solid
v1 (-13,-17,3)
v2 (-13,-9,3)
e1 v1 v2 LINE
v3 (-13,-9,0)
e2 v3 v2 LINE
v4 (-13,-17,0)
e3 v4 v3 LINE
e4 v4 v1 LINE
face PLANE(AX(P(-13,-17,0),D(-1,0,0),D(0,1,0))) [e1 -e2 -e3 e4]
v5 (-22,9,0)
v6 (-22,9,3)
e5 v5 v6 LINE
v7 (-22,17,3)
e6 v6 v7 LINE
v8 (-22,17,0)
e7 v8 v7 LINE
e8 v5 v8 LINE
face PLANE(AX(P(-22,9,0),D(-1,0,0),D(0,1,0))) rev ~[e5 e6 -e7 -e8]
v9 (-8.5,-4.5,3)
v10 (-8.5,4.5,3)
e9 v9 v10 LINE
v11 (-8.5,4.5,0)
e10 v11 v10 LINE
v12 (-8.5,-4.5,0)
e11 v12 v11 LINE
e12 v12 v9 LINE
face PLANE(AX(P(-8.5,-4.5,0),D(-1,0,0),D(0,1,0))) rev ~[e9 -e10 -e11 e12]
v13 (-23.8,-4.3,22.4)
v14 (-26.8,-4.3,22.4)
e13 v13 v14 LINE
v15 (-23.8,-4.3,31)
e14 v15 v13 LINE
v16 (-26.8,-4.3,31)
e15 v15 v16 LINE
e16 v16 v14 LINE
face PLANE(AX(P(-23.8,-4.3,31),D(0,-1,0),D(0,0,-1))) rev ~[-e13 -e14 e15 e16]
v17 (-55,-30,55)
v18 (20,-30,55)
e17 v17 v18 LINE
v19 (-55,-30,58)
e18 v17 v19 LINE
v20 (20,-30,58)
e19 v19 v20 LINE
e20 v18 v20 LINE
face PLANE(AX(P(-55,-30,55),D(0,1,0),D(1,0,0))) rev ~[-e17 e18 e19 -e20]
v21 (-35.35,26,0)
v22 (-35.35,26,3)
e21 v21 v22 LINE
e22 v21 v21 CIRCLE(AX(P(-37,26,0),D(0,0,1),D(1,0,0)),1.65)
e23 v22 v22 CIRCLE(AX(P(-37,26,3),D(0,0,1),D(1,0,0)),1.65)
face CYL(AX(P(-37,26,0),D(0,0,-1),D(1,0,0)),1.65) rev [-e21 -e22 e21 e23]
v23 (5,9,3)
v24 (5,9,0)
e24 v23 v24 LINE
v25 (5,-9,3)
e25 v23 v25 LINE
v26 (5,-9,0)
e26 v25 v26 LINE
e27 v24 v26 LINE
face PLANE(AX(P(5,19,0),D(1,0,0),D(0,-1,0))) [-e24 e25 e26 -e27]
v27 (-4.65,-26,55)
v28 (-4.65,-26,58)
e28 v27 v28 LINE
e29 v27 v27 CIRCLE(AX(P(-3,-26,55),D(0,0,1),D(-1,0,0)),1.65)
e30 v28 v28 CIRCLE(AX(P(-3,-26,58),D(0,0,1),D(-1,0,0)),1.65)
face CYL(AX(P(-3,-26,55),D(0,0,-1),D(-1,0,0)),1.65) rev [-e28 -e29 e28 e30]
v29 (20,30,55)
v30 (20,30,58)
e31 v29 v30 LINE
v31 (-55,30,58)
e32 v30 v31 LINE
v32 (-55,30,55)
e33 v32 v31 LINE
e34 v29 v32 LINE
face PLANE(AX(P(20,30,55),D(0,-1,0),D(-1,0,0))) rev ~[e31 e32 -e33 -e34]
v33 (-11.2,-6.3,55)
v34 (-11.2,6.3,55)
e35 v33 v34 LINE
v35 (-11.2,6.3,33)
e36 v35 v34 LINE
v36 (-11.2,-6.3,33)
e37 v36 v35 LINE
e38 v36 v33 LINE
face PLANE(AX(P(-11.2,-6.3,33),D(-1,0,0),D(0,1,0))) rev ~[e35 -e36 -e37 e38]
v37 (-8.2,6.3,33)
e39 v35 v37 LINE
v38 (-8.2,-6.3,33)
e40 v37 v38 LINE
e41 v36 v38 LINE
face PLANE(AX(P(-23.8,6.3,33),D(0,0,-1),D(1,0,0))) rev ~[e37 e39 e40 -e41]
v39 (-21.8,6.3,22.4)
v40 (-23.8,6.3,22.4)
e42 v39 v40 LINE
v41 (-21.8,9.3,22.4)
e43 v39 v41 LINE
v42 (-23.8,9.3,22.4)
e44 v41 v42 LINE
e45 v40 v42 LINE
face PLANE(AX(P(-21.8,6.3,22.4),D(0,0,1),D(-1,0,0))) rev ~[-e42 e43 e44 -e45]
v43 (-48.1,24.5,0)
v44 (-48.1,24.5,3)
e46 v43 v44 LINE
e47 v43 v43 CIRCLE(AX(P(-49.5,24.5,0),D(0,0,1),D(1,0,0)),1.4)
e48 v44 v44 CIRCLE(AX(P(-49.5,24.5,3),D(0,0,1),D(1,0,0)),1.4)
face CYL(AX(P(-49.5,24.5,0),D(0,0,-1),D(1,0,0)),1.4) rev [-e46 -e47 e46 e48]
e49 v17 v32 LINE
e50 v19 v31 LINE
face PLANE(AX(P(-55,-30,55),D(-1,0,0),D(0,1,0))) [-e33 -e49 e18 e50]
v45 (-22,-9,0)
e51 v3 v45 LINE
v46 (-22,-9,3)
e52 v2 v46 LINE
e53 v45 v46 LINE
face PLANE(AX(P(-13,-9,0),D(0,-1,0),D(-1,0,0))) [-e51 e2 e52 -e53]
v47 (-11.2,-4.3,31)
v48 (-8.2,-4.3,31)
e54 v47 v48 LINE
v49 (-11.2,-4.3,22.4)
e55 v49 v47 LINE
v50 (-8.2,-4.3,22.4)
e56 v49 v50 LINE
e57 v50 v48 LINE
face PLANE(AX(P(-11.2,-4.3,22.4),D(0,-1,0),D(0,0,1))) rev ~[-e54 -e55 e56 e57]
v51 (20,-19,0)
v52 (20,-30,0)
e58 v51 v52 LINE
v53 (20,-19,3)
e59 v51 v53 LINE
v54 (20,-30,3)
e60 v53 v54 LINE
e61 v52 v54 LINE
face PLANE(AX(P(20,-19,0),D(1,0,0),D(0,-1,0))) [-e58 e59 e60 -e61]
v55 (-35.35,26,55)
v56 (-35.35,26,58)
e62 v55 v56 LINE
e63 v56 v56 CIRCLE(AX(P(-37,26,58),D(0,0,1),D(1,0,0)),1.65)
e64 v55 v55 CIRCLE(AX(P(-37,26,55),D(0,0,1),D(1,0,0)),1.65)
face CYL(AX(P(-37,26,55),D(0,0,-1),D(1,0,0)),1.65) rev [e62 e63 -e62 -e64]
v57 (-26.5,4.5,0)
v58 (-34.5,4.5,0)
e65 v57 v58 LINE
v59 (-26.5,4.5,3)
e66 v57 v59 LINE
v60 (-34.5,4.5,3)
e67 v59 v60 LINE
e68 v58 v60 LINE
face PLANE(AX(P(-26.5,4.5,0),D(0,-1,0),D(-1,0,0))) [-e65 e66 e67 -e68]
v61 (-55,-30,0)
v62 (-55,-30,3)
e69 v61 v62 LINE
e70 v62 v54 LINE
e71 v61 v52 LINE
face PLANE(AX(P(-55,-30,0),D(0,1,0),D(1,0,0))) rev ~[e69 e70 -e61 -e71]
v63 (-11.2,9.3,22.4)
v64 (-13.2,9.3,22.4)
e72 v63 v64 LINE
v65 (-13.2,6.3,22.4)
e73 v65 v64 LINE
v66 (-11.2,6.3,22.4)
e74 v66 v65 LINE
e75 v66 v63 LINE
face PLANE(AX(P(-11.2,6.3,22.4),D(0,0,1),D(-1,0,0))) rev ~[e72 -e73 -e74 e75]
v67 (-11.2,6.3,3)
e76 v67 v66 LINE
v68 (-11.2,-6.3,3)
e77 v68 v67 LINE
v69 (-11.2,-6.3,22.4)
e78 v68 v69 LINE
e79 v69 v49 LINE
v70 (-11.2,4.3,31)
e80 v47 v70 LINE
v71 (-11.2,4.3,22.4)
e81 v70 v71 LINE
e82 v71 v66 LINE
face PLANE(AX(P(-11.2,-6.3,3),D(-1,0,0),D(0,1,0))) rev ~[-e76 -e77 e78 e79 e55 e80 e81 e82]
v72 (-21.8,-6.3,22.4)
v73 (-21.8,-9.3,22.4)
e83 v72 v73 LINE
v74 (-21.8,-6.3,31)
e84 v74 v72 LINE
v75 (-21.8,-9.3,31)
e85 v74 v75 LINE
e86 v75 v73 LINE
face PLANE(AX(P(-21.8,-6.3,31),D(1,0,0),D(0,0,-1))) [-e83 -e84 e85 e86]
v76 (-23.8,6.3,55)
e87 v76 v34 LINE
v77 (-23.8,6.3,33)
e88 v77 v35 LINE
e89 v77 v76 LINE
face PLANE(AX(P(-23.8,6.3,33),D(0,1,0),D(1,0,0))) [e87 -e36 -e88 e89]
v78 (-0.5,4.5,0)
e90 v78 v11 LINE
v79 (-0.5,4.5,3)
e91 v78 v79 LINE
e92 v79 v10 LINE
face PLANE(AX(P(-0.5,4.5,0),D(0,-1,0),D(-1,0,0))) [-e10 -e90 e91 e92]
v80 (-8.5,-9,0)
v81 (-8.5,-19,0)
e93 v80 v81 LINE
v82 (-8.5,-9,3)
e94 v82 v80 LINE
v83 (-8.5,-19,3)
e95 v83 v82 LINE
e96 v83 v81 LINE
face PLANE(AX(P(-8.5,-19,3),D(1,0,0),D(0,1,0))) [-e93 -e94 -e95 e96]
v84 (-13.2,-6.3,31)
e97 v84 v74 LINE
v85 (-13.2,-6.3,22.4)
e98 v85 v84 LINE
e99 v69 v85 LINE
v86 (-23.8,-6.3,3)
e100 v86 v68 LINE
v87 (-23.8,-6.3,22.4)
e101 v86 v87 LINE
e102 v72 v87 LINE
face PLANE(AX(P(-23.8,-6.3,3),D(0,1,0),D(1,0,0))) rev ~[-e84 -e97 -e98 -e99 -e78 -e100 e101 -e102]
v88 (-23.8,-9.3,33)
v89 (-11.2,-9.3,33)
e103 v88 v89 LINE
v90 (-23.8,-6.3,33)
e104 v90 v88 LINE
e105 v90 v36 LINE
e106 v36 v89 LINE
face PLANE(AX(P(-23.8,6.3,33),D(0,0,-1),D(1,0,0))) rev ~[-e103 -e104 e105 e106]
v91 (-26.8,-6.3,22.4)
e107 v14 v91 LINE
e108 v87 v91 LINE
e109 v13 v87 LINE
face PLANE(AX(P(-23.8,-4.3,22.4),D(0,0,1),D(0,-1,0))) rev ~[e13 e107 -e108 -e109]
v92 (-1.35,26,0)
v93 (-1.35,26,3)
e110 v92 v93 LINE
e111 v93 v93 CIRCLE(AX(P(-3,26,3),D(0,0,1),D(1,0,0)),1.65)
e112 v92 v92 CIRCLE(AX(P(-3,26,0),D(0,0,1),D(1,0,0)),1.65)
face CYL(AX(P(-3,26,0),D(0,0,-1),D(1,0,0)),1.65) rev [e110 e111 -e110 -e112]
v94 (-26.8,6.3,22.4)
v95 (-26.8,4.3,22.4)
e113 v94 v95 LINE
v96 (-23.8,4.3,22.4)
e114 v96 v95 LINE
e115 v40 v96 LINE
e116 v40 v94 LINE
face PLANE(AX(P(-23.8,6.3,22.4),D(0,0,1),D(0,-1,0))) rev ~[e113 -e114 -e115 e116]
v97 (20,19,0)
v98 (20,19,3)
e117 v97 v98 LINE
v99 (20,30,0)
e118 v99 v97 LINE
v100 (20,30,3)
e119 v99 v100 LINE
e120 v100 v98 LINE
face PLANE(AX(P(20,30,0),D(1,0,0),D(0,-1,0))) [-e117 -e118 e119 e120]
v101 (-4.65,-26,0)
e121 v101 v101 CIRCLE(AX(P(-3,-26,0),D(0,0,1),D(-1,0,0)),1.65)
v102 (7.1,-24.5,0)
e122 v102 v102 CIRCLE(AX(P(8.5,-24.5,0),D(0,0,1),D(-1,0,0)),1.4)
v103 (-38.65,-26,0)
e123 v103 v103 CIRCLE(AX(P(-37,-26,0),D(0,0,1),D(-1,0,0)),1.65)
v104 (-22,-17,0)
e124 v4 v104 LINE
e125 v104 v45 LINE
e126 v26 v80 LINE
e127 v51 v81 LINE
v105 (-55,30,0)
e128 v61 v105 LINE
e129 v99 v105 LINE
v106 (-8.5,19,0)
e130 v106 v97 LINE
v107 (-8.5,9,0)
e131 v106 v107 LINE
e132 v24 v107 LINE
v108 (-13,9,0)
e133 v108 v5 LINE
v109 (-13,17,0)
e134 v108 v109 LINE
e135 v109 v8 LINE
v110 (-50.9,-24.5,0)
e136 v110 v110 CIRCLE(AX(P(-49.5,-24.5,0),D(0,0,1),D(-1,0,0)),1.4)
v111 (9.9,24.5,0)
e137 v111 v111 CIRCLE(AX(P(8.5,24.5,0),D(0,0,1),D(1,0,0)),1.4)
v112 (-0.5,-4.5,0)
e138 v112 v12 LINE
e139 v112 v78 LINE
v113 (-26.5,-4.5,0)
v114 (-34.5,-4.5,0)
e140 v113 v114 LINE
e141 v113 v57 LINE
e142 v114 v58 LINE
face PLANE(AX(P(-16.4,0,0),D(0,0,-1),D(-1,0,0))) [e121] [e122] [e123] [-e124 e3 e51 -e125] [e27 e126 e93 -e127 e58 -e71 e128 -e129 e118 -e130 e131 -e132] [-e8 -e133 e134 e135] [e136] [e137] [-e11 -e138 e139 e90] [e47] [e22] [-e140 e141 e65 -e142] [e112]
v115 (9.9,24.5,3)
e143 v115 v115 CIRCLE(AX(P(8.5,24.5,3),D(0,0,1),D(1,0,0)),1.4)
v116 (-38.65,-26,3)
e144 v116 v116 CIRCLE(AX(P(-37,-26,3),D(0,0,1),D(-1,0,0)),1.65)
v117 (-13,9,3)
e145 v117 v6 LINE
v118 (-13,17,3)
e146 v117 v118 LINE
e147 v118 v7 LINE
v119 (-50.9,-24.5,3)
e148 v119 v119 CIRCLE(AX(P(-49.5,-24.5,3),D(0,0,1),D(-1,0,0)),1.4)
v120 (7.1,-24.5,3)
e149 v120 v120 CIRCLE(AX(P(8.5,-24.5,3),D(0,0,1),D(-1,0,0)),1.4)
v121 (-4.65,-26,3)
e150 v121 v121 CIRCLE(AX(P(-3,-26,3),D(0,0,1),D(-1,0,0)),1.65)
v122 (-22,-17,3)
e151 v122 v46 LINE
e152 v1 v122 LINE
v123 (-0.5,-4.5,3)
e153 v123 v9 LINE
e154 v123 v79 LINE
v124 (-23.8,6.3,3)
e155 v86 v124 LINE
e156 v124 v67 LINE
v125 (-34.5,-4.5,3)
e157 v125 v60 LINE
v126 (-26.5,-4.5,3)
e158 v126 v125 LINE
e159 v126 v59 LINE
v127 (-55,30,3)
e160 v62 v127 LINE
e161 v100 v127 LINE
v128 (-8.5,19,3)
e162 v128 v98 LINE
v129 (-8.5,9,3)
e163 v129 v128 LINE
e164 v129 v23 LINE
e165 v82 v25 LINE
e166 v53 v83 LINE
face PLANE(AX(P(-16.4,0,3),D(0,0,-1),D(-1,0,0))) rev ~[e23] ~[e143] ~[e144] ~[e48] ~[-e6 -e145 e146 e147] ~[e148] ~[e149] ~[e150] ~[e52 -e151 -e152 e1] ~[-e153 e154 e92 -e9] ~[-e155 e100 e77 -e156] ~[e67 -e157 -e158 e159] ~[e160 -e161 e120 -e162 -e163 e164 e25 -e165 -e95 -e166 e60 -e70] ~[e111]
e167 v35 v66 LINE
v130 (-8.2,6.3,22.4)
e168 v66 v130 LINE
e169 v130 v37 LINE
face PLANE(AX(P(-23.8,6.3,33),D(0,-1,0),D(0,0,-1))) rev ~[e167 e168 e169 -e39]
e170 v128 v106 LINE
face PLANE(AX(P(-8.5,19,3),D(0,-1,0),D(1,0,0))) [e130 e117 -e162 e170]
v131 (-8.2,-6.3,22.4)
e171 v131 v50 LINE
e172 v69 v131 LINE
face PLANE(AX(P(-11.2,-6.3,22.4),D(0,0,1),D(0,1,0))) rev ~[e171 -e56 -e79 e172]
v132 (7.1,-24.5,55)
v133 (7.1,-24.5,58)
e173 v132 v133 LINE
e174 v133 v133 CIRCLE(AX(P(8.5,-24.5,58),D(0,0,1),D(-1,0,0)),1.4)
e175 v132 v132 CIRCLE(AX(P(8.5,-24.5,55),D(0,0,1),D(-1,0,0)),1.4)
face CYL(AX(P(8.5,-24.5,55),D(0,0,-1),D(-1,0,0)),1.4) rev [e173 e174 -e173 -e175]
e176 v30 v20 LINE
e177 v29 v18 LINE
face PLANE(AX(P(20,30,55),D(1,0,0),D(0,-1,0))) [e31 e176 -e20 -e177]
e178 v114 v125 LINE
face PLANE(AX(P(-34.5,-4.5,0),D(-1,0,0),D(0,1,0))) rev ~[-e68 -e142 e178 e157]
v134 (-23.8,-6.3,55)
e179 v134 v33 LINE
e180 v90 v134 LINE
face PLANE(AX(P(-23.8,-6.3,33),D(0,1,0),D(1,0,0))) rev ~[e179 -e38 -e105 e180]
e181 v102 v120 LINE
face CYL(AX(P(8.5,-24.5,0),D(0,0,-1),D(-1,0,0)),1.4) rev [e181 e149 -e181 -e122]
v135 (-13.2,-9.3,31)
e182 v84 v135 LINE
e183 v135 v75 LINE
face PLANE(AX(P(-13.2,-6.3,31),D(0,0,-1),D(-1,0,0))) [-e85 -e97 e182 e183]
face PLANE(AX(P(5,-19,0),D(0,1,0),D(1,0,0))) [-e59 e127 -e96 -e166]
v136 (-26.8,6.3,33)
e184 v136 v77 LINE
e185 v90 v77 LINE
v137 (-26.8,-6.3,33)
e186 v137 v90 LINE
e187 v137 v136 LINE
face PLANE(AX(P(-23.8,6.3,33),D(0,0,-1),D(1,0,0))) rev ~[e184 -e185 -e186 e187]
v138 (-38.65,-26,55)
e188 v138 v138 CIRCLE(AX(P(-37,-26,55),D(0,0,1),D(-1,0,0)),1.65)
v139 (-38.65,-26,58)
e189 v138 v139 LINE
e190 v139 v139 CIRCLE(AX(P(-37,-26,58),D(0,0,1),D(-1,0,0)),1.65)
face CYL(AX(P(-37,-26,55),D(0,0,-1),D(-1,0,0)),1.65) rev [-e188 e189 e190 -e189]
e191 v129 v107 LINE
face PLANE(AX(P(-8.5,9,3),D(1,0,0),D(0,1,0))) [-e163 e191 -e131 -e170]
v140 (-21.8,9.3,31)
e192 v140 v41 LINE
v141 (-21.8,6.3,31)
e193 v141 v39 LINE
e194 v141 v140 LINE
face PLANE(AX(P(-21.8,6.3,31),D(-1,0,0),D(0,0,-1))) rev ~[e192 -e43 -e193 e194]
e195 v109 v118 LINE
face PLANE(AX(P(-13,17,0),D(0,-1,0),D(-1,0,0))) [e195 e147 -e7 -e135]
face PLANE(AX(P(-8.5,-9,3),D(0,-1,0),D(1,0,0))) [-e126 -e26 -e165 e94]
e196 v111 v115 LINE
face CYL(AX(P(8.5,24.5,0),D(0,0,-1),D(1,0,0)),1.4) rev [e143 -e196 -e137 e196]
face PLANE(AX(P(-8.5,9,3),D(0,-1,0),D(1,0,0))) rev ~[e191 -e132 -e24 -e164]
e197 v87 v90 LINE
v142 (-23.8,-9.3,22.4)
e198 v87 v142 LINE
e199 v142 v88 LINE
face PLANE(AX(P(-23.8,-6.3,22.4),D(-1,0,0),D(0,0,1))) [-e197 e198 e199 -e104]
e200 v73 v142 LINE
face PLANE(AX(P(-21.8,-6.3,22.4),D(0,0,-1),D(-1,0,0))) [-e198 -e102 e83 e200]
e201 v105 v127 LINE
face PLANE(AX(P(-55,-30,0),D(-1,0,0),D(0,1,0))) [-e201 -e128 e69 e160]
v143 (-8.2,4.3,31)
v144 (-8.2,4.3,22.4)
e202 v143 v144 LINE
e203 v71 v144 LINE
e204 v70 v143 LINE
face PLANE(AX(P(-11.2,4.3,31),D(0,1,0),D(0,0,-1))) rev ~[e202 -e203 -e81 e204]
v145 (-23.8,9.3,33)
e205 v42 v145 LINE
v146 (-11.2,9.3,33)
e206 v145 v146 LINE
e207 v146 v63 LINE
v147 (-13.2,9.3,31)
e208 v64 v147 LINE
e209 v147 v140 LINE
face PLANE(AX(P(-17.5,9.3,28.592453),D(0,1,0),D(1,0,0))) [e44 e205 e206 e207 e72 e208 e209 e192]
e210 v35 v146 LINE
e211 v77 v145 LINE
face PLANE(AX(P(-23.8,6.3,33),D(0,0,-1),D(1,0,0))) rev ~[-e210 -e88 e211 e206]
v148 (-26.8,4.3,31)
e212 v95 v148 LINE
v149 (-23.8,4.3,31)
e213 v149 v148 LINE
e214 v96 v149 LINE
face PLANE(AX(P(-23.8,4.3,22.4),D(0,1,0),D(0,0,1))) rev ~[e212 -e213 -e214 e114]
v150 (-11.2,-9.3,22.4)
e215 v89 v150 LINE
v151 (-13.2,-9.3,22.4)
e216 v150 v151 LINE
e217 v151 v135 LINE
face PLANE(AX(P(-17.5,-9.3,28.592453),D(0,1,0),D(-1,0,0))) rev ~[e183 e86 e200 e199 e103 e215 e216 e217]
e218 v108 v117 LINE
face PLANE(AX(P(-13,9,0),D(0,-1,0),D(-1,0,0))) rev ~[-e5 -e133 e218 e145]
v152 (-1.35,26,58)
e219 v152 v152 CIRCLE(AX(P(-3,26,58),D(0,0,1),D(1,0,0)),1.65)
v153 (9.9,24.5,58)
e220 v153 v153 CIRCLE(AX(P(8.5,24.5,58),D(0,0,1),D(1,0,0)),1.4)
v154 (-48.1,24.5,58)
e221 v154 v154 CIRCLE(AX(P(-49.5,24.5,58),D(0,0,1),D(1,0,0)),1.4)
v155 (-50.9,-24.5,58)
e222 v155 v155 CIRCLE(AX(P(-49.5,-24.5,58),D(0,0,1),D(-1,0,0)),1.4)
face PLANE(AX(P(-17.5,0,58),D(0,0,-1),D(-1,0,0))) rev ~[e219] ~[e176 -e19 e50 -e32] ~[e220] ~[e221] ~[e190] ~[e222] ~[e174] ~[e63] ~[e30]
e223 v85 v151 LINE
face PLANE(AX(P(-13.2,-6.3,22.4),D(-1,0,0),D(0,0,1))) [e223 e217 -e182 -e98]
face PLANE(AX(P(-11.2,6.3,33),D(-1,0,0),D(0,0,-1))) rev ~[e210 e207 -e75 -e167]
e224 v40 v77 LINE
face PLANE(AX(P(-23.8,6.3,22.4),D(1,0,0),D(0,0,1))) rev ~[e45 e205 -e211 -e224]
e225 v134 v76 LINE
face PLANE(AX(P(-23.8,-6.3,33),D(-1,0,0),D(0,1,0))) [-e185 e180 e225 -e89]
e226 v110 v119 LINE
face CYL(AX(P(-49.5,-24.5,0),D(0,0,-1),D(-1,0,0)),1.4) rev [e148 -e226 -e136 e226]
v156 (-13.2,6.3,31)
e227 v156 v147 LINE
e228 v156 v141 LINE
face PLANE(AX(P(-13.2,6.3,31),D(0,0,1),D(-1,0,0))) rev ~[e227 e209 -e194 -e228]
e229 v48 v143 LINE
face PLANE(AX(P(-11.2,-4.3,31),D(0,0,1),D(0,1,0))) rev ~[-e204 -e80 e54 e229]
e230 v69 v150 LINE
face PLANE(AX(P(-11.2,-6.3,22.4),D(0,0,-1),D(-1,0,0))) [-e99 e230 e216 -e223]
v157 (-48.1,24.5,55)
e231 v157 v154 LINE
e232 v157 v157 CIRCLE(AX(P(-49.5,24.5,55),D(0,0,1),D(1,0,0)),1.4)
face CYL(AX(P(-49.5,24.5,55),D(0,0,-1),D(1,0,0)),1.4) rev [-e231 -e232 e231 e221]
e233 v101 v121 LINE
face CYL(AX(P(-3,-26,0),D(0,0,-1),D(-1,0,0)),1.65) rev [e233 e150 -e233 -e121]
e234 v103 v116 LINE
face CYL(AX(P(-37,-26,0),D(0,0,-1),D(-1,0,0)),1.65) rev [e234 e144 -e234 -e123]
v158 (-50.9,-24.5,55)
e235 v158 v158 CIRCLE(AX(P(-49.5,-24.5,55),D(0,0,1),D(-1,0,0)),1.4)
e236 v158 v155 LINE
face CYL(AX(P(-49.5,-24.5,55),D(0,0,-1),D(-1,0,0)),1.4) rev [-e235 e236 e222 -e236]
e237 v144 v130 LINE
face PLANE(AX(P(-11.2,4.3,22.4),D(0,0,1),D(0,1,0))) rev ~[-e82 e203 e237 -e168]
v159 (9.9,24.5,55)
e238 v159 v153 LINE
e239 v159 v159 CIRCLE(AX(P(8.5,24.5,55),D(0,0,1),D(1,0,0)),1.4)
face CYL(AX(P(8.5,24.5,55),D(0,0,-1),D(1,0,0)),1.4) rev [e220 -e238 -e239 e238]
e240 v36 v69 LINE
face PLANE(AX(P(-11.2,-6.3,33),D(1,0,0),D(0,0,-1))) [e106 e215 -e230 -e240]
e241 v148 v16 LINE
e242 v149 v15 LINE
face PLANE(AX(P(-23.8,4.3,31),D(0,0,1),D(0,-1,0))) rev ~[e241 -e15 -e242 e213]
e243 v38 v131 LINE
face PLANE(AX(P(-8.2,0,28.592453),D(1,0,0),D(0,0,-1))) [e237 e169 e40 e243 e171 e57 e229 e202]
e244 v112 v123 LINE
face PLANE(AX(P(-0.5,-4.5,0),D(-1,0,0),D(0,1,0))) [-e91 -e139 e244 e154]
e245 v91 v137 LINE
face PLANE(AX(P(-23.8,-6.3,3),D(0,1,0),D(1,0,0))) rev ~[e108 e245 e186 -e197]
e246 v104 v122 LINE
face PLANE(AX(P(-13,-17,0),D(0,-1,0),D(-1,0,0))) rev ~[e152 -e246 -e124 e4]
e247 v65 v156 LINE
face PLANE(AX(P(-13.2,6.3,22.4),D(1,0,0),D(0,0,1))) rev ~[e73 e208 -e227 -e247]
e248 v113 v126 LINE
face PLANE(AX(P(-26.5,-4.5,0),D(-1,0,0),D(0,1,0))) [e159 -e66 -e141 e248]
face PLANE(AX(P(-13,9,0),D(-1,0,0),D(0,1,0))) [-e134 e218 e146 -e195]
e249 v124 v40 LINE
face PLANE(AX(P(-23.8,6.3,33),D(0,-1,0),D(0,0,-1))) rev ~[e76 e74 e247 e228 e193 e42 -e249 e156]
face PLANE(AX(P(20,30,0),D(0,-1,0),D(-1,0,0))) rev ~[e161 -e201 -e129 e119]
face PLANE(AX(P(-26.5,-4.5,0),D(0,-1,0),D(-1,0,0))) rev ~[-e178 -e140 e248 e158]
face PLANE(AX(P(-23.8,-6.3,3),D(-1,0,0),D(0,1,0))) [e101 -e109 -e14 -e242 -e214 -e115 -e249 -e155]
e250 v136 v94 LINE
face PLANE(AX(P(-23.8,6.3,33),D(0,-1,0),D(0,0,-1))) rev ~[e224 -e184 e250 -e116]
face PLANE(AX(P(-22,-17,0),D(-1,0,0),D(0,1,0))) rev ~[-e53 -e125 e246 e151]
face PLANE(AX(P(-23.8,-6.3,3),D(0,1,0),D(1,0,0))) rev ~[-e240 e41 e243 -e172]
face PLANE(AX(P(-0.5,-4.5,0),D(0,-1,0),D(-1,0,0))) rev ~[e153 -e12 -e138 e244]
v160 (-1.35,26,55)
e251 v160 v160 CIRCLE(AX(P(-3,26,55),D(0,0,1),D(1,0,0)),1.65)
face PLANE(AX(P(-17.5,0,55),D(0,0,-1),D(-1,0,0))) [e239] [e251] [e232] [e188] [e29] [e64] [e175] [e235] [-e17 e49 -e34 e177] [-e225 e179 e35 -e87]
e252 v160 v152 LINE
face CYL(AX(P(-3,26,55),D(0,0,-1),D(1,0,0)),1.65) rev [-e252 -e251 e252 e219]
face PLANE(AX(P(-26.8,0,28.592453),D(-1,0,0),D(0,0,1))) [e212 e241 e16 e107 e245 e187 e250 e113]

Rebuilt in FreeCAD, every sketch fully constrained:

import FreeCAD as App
import Part
import Sketcher

V = App.Vector

doc = App.newDocument("Part")
params = doc.addObject("Spreadsheet::Sheet", "Params")
for row, (alias, value) in enumerate([
    ("sketch1_diameter", "2.8 mm"),
    ("sketch1_diameter2", "3.3 mm"),
    ("sketch1_width", "75 mm"),
    ("sketch1_width2", "15 mm"),
    ("sketch1_height", "60 mm"),
    ("pad1_length", "3 mm"),
    ("sketch2_width", "12.6 mm"),
    ("pad2_length", "30 mm"),
    ("sketch3_width", "9 mm"),
    ("sketch3_width2", "8 mm"),
    ("sketch4_width", "2 mm"),
    ("sketch4_width2", "12.6 mm"),
    ("sketch4_height", "10.6 mm"),
    ("pad3_length", "3 mm"),
    ("sketch5_width", "2 mm"),
    ("sketch5_width2", "8.6 mm"),
    ("sketch5_height", "10.6 mm"),
    ("pad4_length", "3 mm"),
    ("sketch6_width", "2 mm"),
    ("sketch6_width2", "8.6 mm"),
    ("sketch6_height", "10.6 mm"),
    ("pad5_length", "3 mm"),
    ("sketch7_width", "2 mm"),
    ("sketch7_width2", "12.6 mm"),
    ("sketch7_height", "10.6 mm"),
    ("pad6_length", "3 mm"),
    ("sketch8_width", "12.6 mm"),
    ("pad7_length", "22 mm"),
    ("sketch9_diameter", "2.8 mm"),
    ("sketch9_diameter2", "3.3 mm"),
    ("sketch9_width", "75 mm"),
    ("sketch9_height", "60 mm"),
    ("pad8_length", "3 mm"),
    ("sketch10_height", "10 mm"),
    ("sketch10_width", "13.5 mm"),
], start=1):
    params.set(f"A{row}", alias)
    params.set(f"B{row}", "=" + value)
    params.setAlias(f"B{row}", alias)

body = doc.addObject("PartDesign::Body", "Body")

sketch1 = doc.addObject("Sketcher::SketchObject", "Sketch")
body.addObject(sketch1)
sketch1.AttachmentSupport = (doc.XY_Plane, [""])
sketch1.MapMode = "FlatFace"
sketch1.addGeometry(Part.LineSegment(V(20, 30, 0), V(-55, 30, 0)), False)
sketch1.addGeometry(Part.LineSegment(V(-55, 30, 0), V(-55, -30, 0)), False)
sketch1.addGeometry(Part.LineSegment(V(-55, -30, 0), V(20, -30, 0)), False)
sketch1.addGeometry(Part.LineSegment(V(20, -30, 0), V(20, -19, 0)), False)
sketch1.addGeometry(Part.LineSegment(V(20, -19, 0), V(5, -19, 0)), False)
sketch1.addGeometry(Part.LineSegment(V(5, -19, 0), V(5, 19, 0)), False)
sketch1.addGeometry(Part.LineSegment(V(5, 19, 0), V(20, 19, 0)), False)
sketch1.addGeometry(Part.LineSegment(V(20, 19, 0), V(20, 30, 0)), False)
sketch1.addGeometry(Part.Circle(V(8.5, -24.5, 0), V(0, 0, 1), 1.4), False)
sketch1.addGeometry(Part.Circle(V(-3, -26, 0), V(0, 0, 1), 1.65), False)
sketch1.addGeometry(Part.Circle(V(-37, -26, 0), V(0, 0, 1), 1.65), False)
sketch1.addGeometry(Part.Circle(V(-49.5, -24.5, 0), V(0, 0, 1), 1.4), False)
sketch1.addGeometry(Part.Circle(V(8.5, 24.5, 0), V(0, 0, 1), 1.4), False)
sketch1.addGeometry(Part.Circle(V(-3, 26, 0), V(0, 0, 1), 1.65), False)
sketch1.addGeometry(Part.Circle(V(-37, 26, 0), V(0, 0, 1), 1.65), False)
sketch1.addGeometry(Part.Circle(V(-49.5, 24.5, 0), V(0, 0, 1), 1.4), False)
sketch1.addConstraint(Sketcher.Constraint("Coincident", 0, 2, 1, 1))
sketch1.addConstraint(Sketcher.Constraint("Coincident", 1, 2, 2, 1))
sketch1.addConstraint(Sketcher.Constraint("Coincident", 2, 2, 3, 1))
sketch1.addConstraint(Sketcher.Constraint("Coincident", 3, 2, 4, 1))
sketch1.addConstraint(Sketcher.Constraint("Coincident", 4, 2, 5, 1))
sketch1.addConstraint(Sketcher.Constraint("Coincident", 5, 2, 6, 1))
sketch1.addConstraint(Sketcher.Constraint("Coincident", 6, 2, 7, 1))
sketch1.addConstraint(Sketcher.Constraint("Coincident", 7, 2, 0, 1))
sketch1.addConstraint(Sketcher.Constraint("Horizontal", 0))
sketch1.addConstraint(Sketcher.Constraint("Vertical", 1))
sketch1.addConstraint(Sketcher.Constraint("Horizontal", 2))
sketch1.addConstraint(Sketcher.Constraint("Vertical", 3))
sketch1.addConstraint(Sketcher.Constraint("Horizontal", 4))
sketch1.addConstraint(Sketcher.Constraint("Vertical", 5))
sketch1.addConstraint(Sketcher.Constraint("Horizontal", 6))
sketch1.addConstraint(Sketcher.Constraint("Vertical", 7))
sketch1.addConstraint(Sketcher.Constraint("Equal", 9, 10))
sketch1.addConstraint(Sketcher.Constraint("Equal", 8, 11))
sketch1.addConstraint(Sketcher.Constraint("Equal", 11, 12))
sketch1.addConstraint(Sketcher.Constraint("Equal", 10, 13))
sketch1.addConstraint(Sketcher.Constraint("Equal", 13, 14))
sketch1.addConstraint(Sketcher.Constraint("Equal", 12, 15))
sketch1.addConstraint(Sketcher.Constraint("Symmetric", 8, 3, 12, 3, -1))
sketch1.addConstraint(Sketcher.Constraint("Symmetric", 9, 3, 13, 3, -1))
sketch1.addConstraint(Sketcher.Constraint("Symmetric", 10, 3, 14, 3, -1))
sketch1.addConstraint(Sketcher.Constraint("Symmetric", 11, 3, 15, 3, -1))
sketch1.addConstraint(Sketcher.Constraint("Symmetric", 3, 2, 6, 2, -1))
sketch1.addConstraint(Sketcher.Constraint("Horizontal", 9, 3, 10, 3))
sketch1.addConstraint(Sketcher.Constraint("Horizontal", 8, 3, 11, 3))
sketch1.addConstraint(Sketcher.Constraint("Equal", 3, 7))
sketch1.addConstraint(Sketcher.Constraint("Diameter", 8, 2.8))
sketch1.addConstraint(Sketcher.Constraint("Diameter", 9, 3.3))
sketch1.addConstraint(Sketcher.Constraint("DistanceX", 0, 2, 0, 1, 75.0))
sketch1.addConstraint(Sketcher.Constraint("DistanceX", 4, 2, 4, 1, 15.0))
sketch1.addConstraint(Sketcher.Constraint("DistanceY", 1, 2, 1, 1, 60.0))
sketch1.addConstraint(Sketcher.Constraint("DistanceY", 3, 1, 3, 2, 11.0))
sketch1.addConstraint(Sketcher.Constraint("DistanceX", 9, 3, -1, 1, 3.0))
sketch1.addConstraint(Sketcher.Constraint("DistanceY", 9, 3, -1, 1, 26.0))
sketch1.addConstraint(Sketcher.Constraint("DistanceX", 10, 3, -1, 1, 37.0))
sketch1.addConstraint(Sketcher.Constraint("DistanceX", 0, 2, -1, 1, 55.0))
sketch1.addConstraint(Sketcher.Constraint("DistanceX", 11, 3, 8, 3, 58.0))
sketch1.addConstraint(Sketcher.Constraint("DistanceY", 8, 3, 12, 3, 49.0))
sketch1.addConstraint(Sketcher.Constraint("DistanceX", -1, 1, 8, 3, 8.5))
sketch1.setExpression("Constraints[30]", "Params.sketch1_diameter")
sketch1.setExpression("Constraints[31]", "Params.sketch1_diameter2")
sketch1.setExpression("Constraints[32]", "Params.sketch1_width")
sketch1.setExpression("Constraints[33]", "Params.sketch1_width2")
sketch1.setExpression("Constraints[34]", "Params.sketch1_height")
pad1 = doc.addObject("PartDesign::Pad", "Pad")
body.addObject(pad1)
pad1.Profile = sketch1
pad1.setExpression("Length", "Params.pad1_length")

sketch2 = doc.addObject("Sketcher::SketchObject", "Sketch001")
body.addObject(sketch2)
sketch2.AttachmentSupport = (doc.XY_Plane, [""])
sketch2.MapMode = "FlatFace"
sketch2.AttachmentOffset = App.Placement(V(0, 0, 3), App.Rotation())
sketch2.addGeometry(Part.LineSegment(V(-23.8, 6.3, 0), V(-23.8, -6.3, 0)), False)
sketch2.addGeometry(Part.LineSegment(V(-23.8, -6.3, 0), V(-11.2, -6.3, 0)), False)
sketch2.addGeometry(Part.LineSegment(V(-11.2, -6.3, 0), V(-11.2, 6.3, 0)), False)
sketch2.addGeometry(Part.LineSegment(V(-11.2, 6.3, 0), V(-23.8, 6.3, 0)), False)
sketch2.addConstraint(Sketcher.Constraint("Coincident", 0, 2, 1, 1))
sketch2.addConstraint(Sketcher.Constraint("Coincident", 1, 2, 2, 1))
sketch2.addConstraint(Sketcher.Constraint("Coincident", 2, 2, 3, 1))
sketch2.addConstraint(Sketcher.Constraint("Coincident", 3, 2, 0, 1))
sketch2.addConstraint(Sketcher.Constraint("Vertical", 0))
sketch2.addConstraint(Sketcher.Constraint("Horizontal", 1))
sketch2.addConstraint(Sketcher.Constraint("Vertical", 2))
sketch2.addConstraint(Sketcher.Constraint("Horizontal", 3))
sketch2.addConstraint(Sketcher.Constraint("Equal", 3, 0))
sketch2.addConstraint(Sketcher.Constraint("DistanceX", 1, 1, 1, 2, 12.6))
sketch2.addConstraint(Sketcher.Constraint("DistanceX", 0, 2, -1, 1, 23.8))
sketch2.addConstraint(Sketcher.Constraint("DistanceY", 0, 2, -1, 1, 6.3))
sketch2.setExpression("Constraints[9]", "Params.sketch2_width")
pad2 = doc.addObject("PartDesign::Pad", "Pad001")
body.addObject(pad2)
pad2.Profile = sketch2
pad2.setExpression("Length", "Params.pad2_length")

sketch3 = doc.addObject("Sketcher::SketchObject", "Sketch002")
body.addObject(sketch3)
sketch3.AttachmentSupport = (doc.XY_Plane, [""])
sketch3.MapMode = "FlatFace"
sketch3.addGeometry(Part.LineSegment(V(-13, 17, 0), V(-13, 9, 0)), False)
sketch3.addGeometry(Part.LineSegment(V(-13, 9, 0), V(-22, 9, 0)), False)
sketch3.addGeometry(Part.LineSegment(V(-22, 9, 0), V(-22, 17, 0)), False)
sketch3.addGeometry(Part.LineSegment(V(-22, 17, 0), V(-13, 17, 0)), False)
sketch3.addGeometry(Part.LineSegment(V(-26.5, 4.5, 0), V(-26.5, -4.5, 0)), False)
sketch3.addGeometry(Part.LineSegment(V(-26.5, -4.5, 0), V(-34.5, -4.5, 0)), False)
sketch3.addGeometry(Part.LineSegment(V(-34.5, -4.5, 0), V(-34.5, 4.5, 0)), False)
sketch3.addGeometry(Part.LineSegment(V(-34.5, 4.5, 0), V(-26.5, 4.5, 0)), False)
sketch3.addGeometry(Part.LineSegment(V(-13, -9, 0), V(-13, -17, 0)), False)
sketch3.addGeometry(Part.LineSegment(V(-13, -17, 0), V(-22, -17, 0)), False)
sketch3.addGeometry(Part.LineSegment(V(-22, -17, 0), V(-22, -9, 0)), False)
sketch3.addGeometry(Part.LineSegment(V(-22, -9, 0), V(-13, -9, 0)), False)
sketch3.addGeometry(Part.LineSegment(V(-0.5, 4.5, 0), V(-0.5, -4.5, 0)), False)
sketch3.addGeometry(Part.LineSegment(V(-0.5, -4.5, 0), V(-8.5, -4.5, 0)), False)
sketch3.addGeometry(Part.LineSegment(V(-8.5, -4.5, 0), V(-8.5, 4.5, 0)), False)
sketch3.addGeometry(Part.LineSegment(V(-8.5, 4.5, 0), V(-0.5, 4.5, 0)), False)
sketch3.addConstraint(Sketcher.Constraint("Coincident", 0, 2, 1, 1))
sketch3.addConstraint(Sketcher.Constraint("Coincident", 1, 2, 2, 1))
sketch3.addConstraint(Sketcher.Constraint("Coincident", 2, 2, 3, 1))
sketch3.addConstraint(Sketcher.Constraint("Coincident", 3, 2, 0, 1))
sketch3.addConstraint(Sketcher.Constraint("Coincident", 4, 2, 5, 1))
sketch3.addConstraint(Sketcher.Constraint("Coincident", 5, 2, 6, 1))
sketch3.addConstraint(Sketcher.Constraint("Coincident", 6, 2, 7, 1))
sketch3.addConstraint(Sketcher.Constraint("Coincident", 7, 2, 4, 1))
sketch3.addConstraint(Sketcher.Constraint("Coincident", 8, 2, 9, 1))
sketch3.addConstraint(Sketcher.Constraint("Coincident", 9, 2, 10, 1))
sketch3.addConstraint(Sketcher.Constraint("Coincident", 10, 2, 11, 1))
sketch3.addConstraint(Sketcher.Constraint("Coincident", 11, 2, 8, 1))
sketch3.addConstraint(Sketcher.Constraint("Coincident", 12, 2, 13, 1))
sketch3.addConstraint(Sketcher.Constraint("Coincident", 13, 2, 14, 1))
sketch3.addConstraint(Sketcher.Constraint("Coincident", 14, 2, 15, 1))
sketch3.addConstraint(Sketcher.Constraint("Coincident", 15, 2, 12, 1))
sketch3.addConstraint(Sketcher.Constraint("Vertical", 0))
sketch3.addConstraint(Sketcher.Constraint("Horizontal", 1))
sketch3.addConstraint(Sketcher.Constraint("Vertical", 2))
sketch3.addConstraint(Sketcher.Constraint("Horizontal", 3))
sketch3.addConstraint(Sketcher.Constraint("Vertical", 4))
sketch3.addConstraint(Sketcher.Constraint("Horizontal", 5))
sketch3.addConstraint(Sketcher.Constraint("Vertical", 6))
sketch3.addConstraint(Sketcher.Constraint("Horizontal", 7))
sketch3.addConstraint(Sketcher.Constraint("Vertical", 8))
sketch3.addConstraint(Sketcher.Constraint("Horizontal", 9))
sketch3.addConstraint(Sketcher.Constraint("Vertical", 10))
sketch3.addConstraint(Sketcher.Constraint("Horizontal", 11))
sketch3.addConstraint(Sketcher.Constraint("Vertical", 12))
sketch3.addConstraint(Sketcher.Constraint("Horizontal", 13))
sketch3.addConstraint(Sketcher.Constraint("Vertical", 14))
sketch3.addConstraint(Sketcher.Constraint("Horizontal", 15))
sketch3.addConstraint(Sketcher.Constraint("Symmetric", 3, 2, 8, 2, -1))
sketch3.addConstraint(Sketcher.Constraint("Symmetric", 1, 2, 10, 2, -1))
sketch3.addConstraint(Sketcher.Constraint("Horizontal", 5, 2, 12, 2))
sketch3.addConstraint(Sketcher.Constraint("Horizontal", 7, 2, 14, 2))
sketch3.addConstraint(Sketcher.Constraint("Equal", 7, 13))
sketch3.addConstraint(Sketcher.Constraint("Equal", 15, 0))
sketch3.addConstraint(Sketcher.Constraint("Equal", 11, 4))
sketch3.addConstraint(Sketcher.Constraint("DistanceX", 1, 2, 1, 1, 9.0))
sketch3.addConstraint(Sketcher.Constraint("DistanceX", 5, 2, 5, 1, 8.0))
sketch3.addConstraint(Sketcher.Constraint("DistanceX", 0, 2, -1, 1, 13.0))
sketch3.addConstraint(Sketcher.Constraint("DistanceY", -1, 1, 0, 2, 9.0))
sketch3.addConstraint(Sketcher.Constraint("DistanceX", 4, 2, -1, 1, 26.5))
sketch3.addConstraint(Sketcher.Constraint("DistanceY", 4, 2, -1, 1, 4.5))
sketch3.addConstraint(Sketcher.Constraint("DistanceX", 12, 2, -1, 1, 0.5))
sketch3.setExpression("Constraints[39]", "Params.sketch3_width")
sketch3.setExpression("Constraints[40]", "Params.sketch3_width2")
pocket1 = doc.addObject("PartDesign::Pocket", "Pocket")
body.addObject(pocket1)
pocket1.Profile = sketch3
pocket1.Type = "ThroughAll"
pocket1.Reversed = True

sketch4 = doc.addObject("Sketcher::SketchObject", "Sketch003")
body.addObject(sketch4)
sketch4.AttachmentSupport = (doc.YZ_Plane, [""])
sketch4.MapMode = "FlatFace"
sketch4.AttachmentOffset = App.Placement(V(0, 0, -11.2), App.Rotation())
sketch4.addGeometry(Part.LineSegment(V(4.3, 31, 0), V(4.3, 22.4, 0)), False)
sketch4.addGeometry(Part.LineSegment(V(4.3, 22.4, 0), V(6.3, 22.4, 0)), False)
sketch4.addGeometry(Part.LineSegment(V(6.3, 22.4, 0), V(6.3, 33, 0)), False)
sketch4.addGeometry(Part.LineSegment(V(6.3, 33, 0), V(-6.3, 33, 0)), False)
sketch4.addGeometry(Part.LineSegment(V(-6.3, 33, 0), V(-6.3, 22.4, 0)), False)
sketch4.addGeometry(Part.LineSegment(V(-6.3, 22.4, 0), V(-4.3, 22.4, 0)), False)
sketch4.addGeometry(Part.LineSegment(V(-4.3, 22.4, 0), V(-4.3, 31, 0)), False)
sketch4.addGeometry(Part.LineSegment(V(-4.3, 31, 0), V(4.3, 31, 0)), False)
sketch4.addConstraint(Sketcher.Constraint("Coincident", 0, 2, 1, 1))
sketch4.addConstraint(Sketcher.Constraint("Coincident", 1, 2, 2, 1))
sketch4.addConstraint(Sketcher.Constraint("Coincident", 2, 2, 3, 1))
sketch4.addConstraint(Sketcher.Constraint("Coincident", 3, 2, 4, 1))
sketch4.addConstraint(Sketcher.Constraint("Coincident", 4, 2, 5, 1))
sketch4.addConstraint(Sketcher.Constraint("Coincident", 5, 2, 6, 1))
sketch4.addConstraint(Sketcher.Constraint("Coincident", 6, 2, 7, 1))
sketch4.addConstraint(Sketcher.Constraint("Coincident", 7, 2, 0, 1))
sketch4.addConstraint(Sketcher.Constraint("Vertical", 0))
sketch4.addConstraint(Sketcher.Constraint("Horizontal", 1))
sketch4.addConstraint(Sketcher.Constraint("Vertical", 2))
sketch4.addConstraint(Sketcher.Constraint("Horizontal", 3))
sketch4.addConstraint(Sketcher.Constraint("Vertical", 4))
sketch4.addConstraint(Sketcher.Constraint("Horizontal", 5))
sketch4.addConstraint(Sketcher.Constraint("Vertical", 6))
sketch4.addConstraint(Sketcher.Constraint("Horizontal", 7))
sketch4.addConstraint(Sketcher.Constraint("Symmetric", 1, 2, 4, 2, -2))
sketch4.addConstraint(Sketcher.Constraint("Equal", 1, 5))
sketch4.addConstraint(Sketcher.Constraint("Equal", 7, 0))
sketch4.addConstraint(Sketcher.Constraint("DistanceX", 1, 1, 1, 2, 2.0))
sketch4.addConstraint(Sketcher.Constraint("DistanceX", 3, 2, 3, 1, 12.6))
sketch4.addConstraint(Sketcher.Constraint("DistanceY", 2, 1, 2, 2, 10.6))
sketch4.addConstraint(Sketcher.Constraint("DistanceY", -1, 1, 2, 2, 33.0))
sketch4.setExpression("Constraints[19]", "Params.sketch4_width")
sketch4.setExpression("Constraints[20]", "Params.sketch4_width2")
sketch4.setExpression("Constraints[21]", "Params.sketch4_height")
pad3 = doc.addObject("PartDesign::Pad", "Pad002")
body.addObject(pad3)
pad3.Profile = sketch4
pad3.setExpression("Length", "Params.pad3_length")

sketch5 = doc.addObject("Sketcher::SketchObject", "Sketch004")
body.addObject(sketch5)
sketch5.AttachmentSupport = (doc.YZ_Plane, [""])
sketch5.MapMode = "FlatFace"
sketch5.AttachmentOffset = App.Placement(V(0, 0, -23.8), App.Rotation())
sketch5.addGeometry(Part.LineSegment(V(6.3, 22.4, 0), V(4.3, 22.4, 0)), False)
sketch5.addGeometry(Part.LineSegment(V(4.3, 22.4, 0), V(4.3, 31, 0)), False)
sketch5.addGeometry(Part.LineSegment(V(4.3, 31, 0), V(-4.3, 31, 0)), False)
sketch5.addGeometry(Part.LineSegment(V(-4.3, 31, 0), V(-4.3, 22.4, 0)), False)
sketch5.addGeometry(Part.LineSegment(V(-4.3, 22.4, 0), V(-6.3, 22.4, 0)), False)
sketch5.addGeometry(Part.LineSegment(V(-6.3, 22.4, 0), V(-6.3, 33, 0)), False)
sketch5.addGeometry(Part.LineSegment(V(-6.3, 33, 0), V(6.3, 33, 0)), False)
sketch5.addGeometry(Part.LineSegment(V(6.3, 33, 0), V(6.3, 22.4, 0)), False)
sketch5.addConstraint(Sketcher.Constraint("Coincident", 0, 2, 1, 1))
sketch5.addConstraint(Sketcher.Constraint("Coincident", 1, 2, 2, 1))
sketch5.addConstraint(Sketcher.Constraint("Coincident", 2, 2, 3, 1))
sketch5.addConstraint(Sketcher.Constraint("Coincident", 3, 2, 4, 1))
sketch5.addConstraint(Sketcher.Constraint("Coincident", 4, 2, 5, 1))
sketch5.addConstraint(Sketcher.Constraint("Coincident", 5, 2, 6, 1))
sketch5.addConstraint(Sketcher.Constraint("Coincident", 6, 2, 7, 1))
sketch5.addConstraint(Sketcher.Constraint("Coincident", 7, 2, 0, 1))
sketch5.addConstraint(Sketcher.Constraint("Horizontal", 0))
sketch5.addConstraint(Sketcher.Constraint("Vertical", 1))
sketch5.addConstraint(Sketcher.Constraint("Horizontal", 2))
sketch5.addConstraint(Sketcher.Constraint("Vertical", 3))
sketch5.addConstraint(Sketcher.Constraint("Horizontal", 4))
sketch5.addConstraint(Sketcher.Constraint("Vertical", 5))
sketch5.addConstraint(Sketcher.Constraint("Horizontal", 6))
sketch5.addConstraint(Sketcher.Constraint("Vertical", 7))
sketch5.addConstraint(Sketcher.Constraint("Symmetric", 0, 2, 3, 2, -2))
sketch5.addConstraint(Sketcher.Constraint("Equal", 0, 4))
sketch5.addConstraint(Sketcher.Constraint("Equal", 2, 1))
sketch5.addConstraint(Sketcher.Constraint("DistanceX", 0, 2, 0, 1, 2.0))
sketch5.addConstraint(Sketcher.Constraint("DistanceX", 2, 2, 2, 1, 8.6))
sketch5.addConstraint(Sketcher.Constraint("DistanceY", 5, 1, 5, 2, 10.6))
sketch5.addConstraint(Sketcher.Constraint("DistanceY", -1, 1, 1, 2, 31.0))
sketch5.setExpression("Constraints[19]", "Params.sketch5_width")
sketch5.setExpression("Constraints[20]", "Params.sketch5_width2")
sketch5.setExpression("Constraints[21]", "Params.sketch5_height")
pad4 = doc.addObject("PartDesign::Pad", "Pad003")
body.addObject(pad4)
pad4.Profile = sketch5
pad4.setExpression("Length", "Params.pad4_length")
pad4.Reversed = True

sketch6 = doc.addObject("Sketcher::SketchObject", "Sketch005")
body.addObject(sketch6)
sketch6.AttachmentSupport = (doc.XZ_Plane, [""])
sketch6.MapMode = "FlatFace"
sketch6.AttachmentOffset = App.Placement(V(0, 0, 6.3), App.Rotation())
sketch6.addGeometry(Part.LineSegment(V(-23.8, 33, 0), V(-23.8, 22.4, 0)), False)
sketch6.addGeometry(Part.LineSegment(V(-23.8, 22.4, 0), V(-21.8, 22.4, 0)), False)
sketch6.addGeometry(Part.LineSegment(V(-21.8, 22.4, 0), V(-21.8, 31, 0)), False)
sketch6.addGeometry(Part.LineSegment(V(-21.8, 31, 0), V(-13.2, 31, 0)), False)
sketch6.addGeometry(Part.LineSegment(V(-13.2, 31, 0), V(-13.2, 22.4, 0)), False)
sketch6.addGeometry(Part.LineSegment(V(-13.2, 22.4, 0), V(-11.2, 22.4, 0)), False)
sketch6.addGeometry(Part.LineSegment(V(-11.2, 22.4, 0), V(-11.2, 33, 0)), False)
sketch6.addGeometry(Part.LineSegment(V(-11.2, 33, 0), V(-23.8, 33, 0)), False)
sketch6.addConstraint(Sketcher.Constraint("Coincident", 0, 2, 1, 1))
sketch6.addConstraint(Sketcher.Constraint("Coincident", 1, 2, 2, 1))
sketch6.addConstraint(Sketcher.Constraint("Coincident", 2, 2, 3, 1))
sketch6.addConstraint(Sketcher.Constraint("Coincident", 3, 2, 4, 1))
sketch6.addConstraint(Sketcher.Constraint("Coincident", 4, 2, 5, 1))
sketch6.addConstraint(Sketcher.Constraint("Coincident", 5, 2, 6, 1))
sketch6.addConstraint(Sketcher.Constraint("Coincident", 6, 2, 7, 1))
sketch6.addConstraint(Sketcher.Constraint("Coincident", 7, 2, 0, 1))
sketch6.addConstraint(Sketcher.Constraint("Vertical", 0))
sketch6.addConstraint(Sketcher.Constraint("Horizontal", 1))
sketch6.addConstraint(Sketcher.Constraint("Vertical", 2))
sketch6.addConstraint(Sketcher.Constraint("Horizontal", 3))
sketch6.addConstraint(Sketcher.Constraint("Vertical", 4))
sketch6.addConstraint(Sketcher.Constraint("Horizontal", 5))
sketch6.addConstraint(Sketcher.Constraint("Vertical", 6))
sketch6.addConstraint(Sketcher.Constraint("Horizontal", 7))
sketch6.addConstraint(Sketcher.Constraint("Horizontal", 1, 2, 4, 2))
sketch6.addConstraint(Sketcher.Constraint("Equal", 1, 5))
sketch6.addConstraint(Sketcher.Constraint("Equal", 3, 2))
sketch6.addConstraint(Sketcher.Constraint("DistanceX", 1, 1, 1, 2, 2.0))
sketch6.addConstraint(Sketcher.Constraint("DistanceX", 3, 1, 3, 2, 8.6))
sketch6.addConstraint(Sketcher.Constraint("DistanceY", 0, 2, 0, 1, 10.6))
sketch6.addConstraint(Sketcher.Constraint("DistanceY", -1, 1, 2, 2, 31.0))
sketch6.addConstraint(Sketcher.Constraint("DistanceX", 0, 2, -1, 1, 23.8))
sketch6.setExpression("Constraints[19]", "Params.sketch6_width")
sketch6.setExpression("Constraints[20]", "Params.sketch6_width2")
sketch6.setExpression("Constraints[21]", "Params.sketch6_height")
pad5 = doc.addObject("PartDesign::Pad", "Pad004")
body.addObject(pad5)
pad5.Profile = sketch6
pad5.setExpression("Length", "Params.pad5_length")

sketch7 = doc.addObject("Sketcher::SketchObject", "Sketch006")
body.addObject(sketch7)
sketch7.AttachmentSupport = (doc.XZ_Plane, [""])
sketch7.MapMode = "FlatFace"
sketch7.AttachmentOffset = App.Placement(V(0, 0, -6.3), App.Rotation())
sketch7.addGeometry(Part.LineSegment(V(-23.8, 22.4, 0), V(-23.8, 33, 0)), False)
sketch7.addGeometry(Part.LineSegment(V(-23.8, 33, 0), V(-11.2, 33, 0)), False)
sketch7.addGeometry(Part.LineSegment(V(-11.2, 33, 0), V(-11.2, 22.4, 0)), False)
sketch7.addGeometry(Part.LineSegment(V(-11.2, 22.4, 0), V(-13.2, 22.4, 0)), False)
sketch7.addGeometry(Part.LineSegment(V(-13.2, 22.4, 0), V(-13.2, 31, 0)), False)
sketch7.addGeometry(Part.LineSegment(V(-13.2, 31, 0), V(-21.8, 31, 0)), False)
sketch7.addGeometry(Part.LineSegment(V(-21.8, 31, 0), V(-21.8, 22.4, 0)), False)
sketch7.addGeometry(Part.LineSegment(V(-21.8, 22.4, 0), V(-23.8, 22.4, 0)), False)
sketch7.addConstraint(Sketcher.Constraint("Coincident", 0, 2, 1, 1))
sketch7.addConstraint(Sketcher.Constraint("Coincident", 1, 2, 2, 1))
sketch7.addConstraint(Sketcher.Constraint("Coincident", 2, 2, 3, 1))
sketch7.addConstraint(Sketcher.Constraint("Coincident", 3, 2, 4, 1))
sketch7.addConstraint(Sketcher.Constraint("Coincident", 4, 2, 5, 1))
sketch7.addConstraint(Sketcher.Constraint("Coincident", 5, 2, 6, 1))
sketch7.addConstraint(Sketcher.Constraint("Coincident", 6, 2, 7, 1))
sketch7.addConstraint(Sketcher.Constraint("Coincident", 7, 2, 0, 1))
sketch7.addConstraint(Sketcher.Constraint("Vertical", 0))
sketch7.addConstraint(Sketcher.Constraint("Horizontal", 1))
sketch7.addConstraint(Sketcher.Constraint("Vertical", 2))
sketch7.addConstraint(Sketcher.Constraint("Horizontal", 3))
sketch7.addConstraint(Sketcher.Constraint("Vertical", 4))
sketch7.addConstraint(Sketcher.Constraint("Horizontal", 5))
sketch7.addConstraint(Sketcher.Constraint("Vertical", 6))
sketch7.addConstraint(Sketcher.Constraint("Horizontal", 7))
sketch7.addConstraint(Sketcher.Constraint("Horizontal", 3, 2, 6, 2))
sketch7.addConstraint(Sketcher.Constraint("Equal", 3, 7))
sketch7.addConstraint(Sketcher.Constraint("Equal", 5, 4))
sketch7.addConstraint(Sketcher.Constraint("DistanceX", 3, 2, 3, 1, 2.0))
sketch7.addConstraint(Sketcher.Constraint("DistanceX", 1, 1, 1, 2, 12.6))
sketch7.addConstraint(Sketcher.Constraint("DistanceY", 0, 1, 0, 2, 10.6))
sketch7.addConstraint(Sketcher.Constraint("DistanceY", -1, 1, 0, 2, 33.0))
sketch7.addConstraint(Sketcher.Constraint("DistanceX", 0, 2, -1, 1, 23.8))
sketch7.setExpression("Constraints[19]", "Params.sketch7_width")
sketch7.setExpression("Constraints[20]", "Params.sketch7_width2")
sketch7.setExpression("Constraints[21]", "Params.sketch7_height")
pad6 = doc.addObject("PartDesign::Pad", "Pad005")
body.addObject(pad6)
pad6.Profile = sketch7
pad6.setExpression("Length", "Params.pad6_length")
pad6.Reversed = True

sketch8 = doc.addObject("Sketcher::SketchObject", "Sketch007")
body.addObject(sketch8)
sketch8.AttachmentSupport = (doc.XY_Plane, [""])
sketch8.MapMode = "FlatFace"
sketch8.AttachmentOffset = App.Placement(V(0, 0, 33), App.Rotation())
sketch8.addGeometry(Part.LineSegment(V(-23.8, 6.3, 0), V(-23.8, -6.3, 0)), False)
sketch8.addGeometry(Part.LineSegment(V(-23.8, -6.3, 0), V(-11.2, -6.3, 0)), False)
sketch8.addGeometry(Part.LineSegment(V(-11.2, -6.3, 0), V(-11.2, 6.3, 0)), False)
sketch8.addGeometry(Part.LineSegment(V(-11.2, 6.3, 0), V(-23.8, 6.3, 0)), False)
sketch8.addConstraint(Sketcher.Constraint("Coincident", 0, 2, 1, 1))
sketch8.addConstraint(Sketcher.Constraint("Coincident", 1, 2, 2, 1))
sketch8.addConstraint(Sketcher.Constraint("Coincident", 2, 2, 3, 1))
sketch8.addConstraint(Sketcher.Constraint("Coincident", 3, 2, 0, 1))
sketch8.addConstraint(Sketcher.Constraint("Vertical", 0))
sketch8.addConstraint(Sketcher.Constraint("Horizontal", 1))
sketch8.addConstraint(Sketcher.Constraint("Vertical", 2))
sketch8.addConstraint(Sketcher.Constraint("Horizontal", 3))
sketch8.addConstraint(Sketcher.Constraint("Equal", 3, 0))
sketch8.addConstraint(Sketcher.Constraint("DistanceX", 1, 1, 1, 2, 12.6))
sketch8.addConstraint(Sketcher.Constraint("DistanceX", 0, 2, -1, 1, 23.8))
sketch8.addConstraint(Sketcher.Constraint("DistanceY", 0, 2, -1, 1, 6.3))
sketch8.setExpression("Constraints[9]", "Params.sketch8_width")
pad7 = doc.addObject("PartDesign::Pad", "Pad006")
body.addObject(pad7)
pad7.Profile = sketch8
pad7.setExpression("Length", "Params.pad7_length")

sketch9 = doc.addObject("Sketcher::SketchObject", "Sketch008")
body.addObject(sketch9)
sketch9.AttachmentSupport = (doc.XY_Plane, [""])
sketch9.MapMode = "FlatFace"
sketch9.AttachmentOffset = App.Placement(V(0, 0, 55), App.Rotation())
sketch9.addGeometry(Part.LineSegment(V(20, 30, 0), V(-55, 30, 0)), False)
sketch9.addGeometry(Part.LineSegment(V(-55, 30, 0), V(-55, -30, 0)), False)
sketch9.addGeometry(Part.LineSegment(V(-55, -30, 0), V(20, -30, 0)), False)
sketch9.addGeometry(Part.LineSegment(V(20, -30, 0), V(20, 30, 0)), False)
sketch9.addGeometry(Part.Circle(V(8.5, -24.5, 0), V(0, 0, 1), 1.4), False)
sketch9.addGeometry(Part.Circle(V(-3, -26, 0), V(0, 0, 1), 1.65), False)
sketch9.addGeometry(Part.Circle(V(-37, -26, 0), V(0, 0, 1), 1.65), False)
sketch9.addGeometry(Part.Circle(V(-49.5, -24.5, 0), V(0, 0, 1), 1.4), False)
sketch9.addGeometry(Part.Circle(V(8.5, 24.5, 0), V(0, 0, 1), 1.4), False)
sketch9.addGeometry(Part.Circle(V(-3, 26, 0), V(0, 0, 1), 1.65), False)
sketch9.addGeometry(Part.Circle(V(-37, 26, 0), V(0, 0, 1), 1.65), False)
sketch9.addGeometry(Part.Circle(V(-49.5, 24.5, 0), V(0, 0, 1), 1.4), False)
sketch9.addConstraint(Sketcher.Constraint("Coincident", 0, 2, 1, 1))
sketch9.addConstraint(Sketcher.Constraint("Coincident", 1, 2, 2, 1))
sketch9.addConstraint(Sketcher.Constraint("Coincident", 2, 2, 3, 1))
sketch9.addConstraint(Sketcher.Constraint("Coincident", 3, 2, 0, 1))
sketch9.addConstraint(Sketcher.Constraint("Horizontal", 0))
sketch9.addConstraint(Sketcher.Constraint("Vertical", 1))
sketch9.addConstraint(Sketcher.Constraint("Horizontal", 2))
sketch9.addConstraint(Sketcher.Constraint("Vertical", 3))
sketch9.addConstraint(Sketcher.Constraint("Equal", 5, 6))
sketch9.addConstraint(Sketcher.Constraint("Equal", 4, 7))
sketch9.addConstraint(Sketcher.Constraint("Equal", 7, 8))
sketch9.addConstraint(Sketcher.Constraint("Equal", 6, 9))
sketch9.addConstraint(Sketcher.Constraint("Equal", 9, 10))
sketch9.addConstraint(Sketcher.Constraint("Equal", 8, 11))
sketch9.addConstraint(Sketcher.Constraint("Symmetric", 4, 3, 8, 3, -1))
sketch9.addConstraint(Sketcher.Constraint("Symmetric", 5, 3, 9, 3, -1))
sketch9.addConstraint(Sketcher.Constraint("Symmetric", 6, 3, 10, 3, -1))
sketch9.addConstraint(Sketcher.Constraint("Symmetric", 7, 3, 11, 3, -1))
sketch9.addConstraint(Sketcher.Constraint("Horizontal", 5, 3, 6, 3))
sketch9.addConstraint(Sketcher.Constraint("Horizontal", 4, 3, 7, 3))
sketch9.addConstraint(Sketcher.Constraint("Diameter", 4, 2.8))
sketch9.addConstraint(Sketcher.Constraint("Diameter", 5, 3.3))
sketch9.addConstraint(Sketcher.Constraint("DistanceX", 0, 2, 0, 1, 75.0))
sketch9.addConstraint(Sketcher.Constraint("DistanceY", 1, 2, 1, 1, 60.0))
sketch9.addConstraint(Sketcher.Constraint("DistanceX", 5, 3, -1, 1, 3.0))
sketch9.addConstraint(Sketcher.Constraint("DistanceY", 5, 3, -1, 1, 26.0))
sketch9.addConstraint(Sketcher.Constraint("DistanceX", 6, 3, -1, 1, 37.0))
sketch9.addConstraint(Sketcher.Constraint("DistanceX", 0, 2, -1, 1, 55.0))
sketch9.addConstraint(Sketcher.Constraint("DistanceY", -1, 1, 0, 2, 30.0))
sketch9.addConstraint(Sketcher.Constraint("DistanceX", 7, 3, 4, 3, 58.0))
sketch9.addConstraint(Sketcher.Constraint("DistanceY", 4, 3, 8, 3, 49.0))
sketch9.addConstraint(Sketcher.Constraint("DistanceX", -1, 1, 4, 3, 8.5))
sketch9.setExpression("Constraints[20]", "Params.sketch9_diameter")
sketch9.setExpression("Constraints[21]", "Params.sketch9_diameter2")
sketch9.setExpression("Constraints[22]", "Params.sketch9_width")
sketch9.setExpression("Constraints[23]", "Params.sketch9_height")
pad8 = doc.addObject("PartDesign::Pad", "Pad007")
body.addObject(pad8)
pad8.Profile = sketch9
pad8.setExpression("Length", "Params.pad8_length")

sketch10 = doc.addObject("Sketcher::SketchObject", "Sketch009")
body.addObject(sketch10)
sketch10.AttachmentSupport = (doc.XY_Plane, [""])
sketch10.MapMode = "FlatFace"
sketch10.AttachmentOffset = App.Placement(V(0, 0, 3), App.Rotation())
sketch10.addGeometry(Part.LineSegment(V(-8.5, 19, 0), V(-8.5, 9, 0)), False)
sketch10.addGeometry(Part.LineSegment(V(-8.5, 9, 0), V(5, 9, 0)), False)
sketch10.addGeometry(Part.LineSegment(V(5, 9, 0), V(5, 19, 0)), False)
sketch10.addGeometry(Part.LineSegment(V(5, 19, 0), V(-8.5, 19, 0)), False)
sketch10.addGeometry(Part.LineSegment(V(-8.5, -9, 0), V(-8.5, -19, 0)), False)
sketch10.addGeometry(Part.LineSegment(V(-8.5, -19, 0), V(5, -19, 0)), False)
sketch10.addGeometry(Part.LineSegment(V(5, -19, 0), V(5, -9, 0)), False)
sketch10.addGeometry(Part.LineSegment(V(5, -9, 0), V(-8.5, -9, 0)), False)
sketch10.addConstraint(Sketcher.Constraint("Coincident", 0, 2, 1, 1))
sketch10.addConstraint(Sketcher.Constraint("Coincident", 1, 2, 2, 1))
sketch10.addConstraint(Sketcher.Constraint("Coincident", 2, 2, 3, 1))
sketch10.addConstraint(Sketcher.Constraint("Coincident", 3, 2, 0, 1))
sketch10.addConstraint(Sketcher.Constraint("Coincident", 4, 2, 5, 1))
sketch10.addConstraint(Sketcher.Constraint("Coincident", 5, 2, 6, 1))
sketch10.addConstraint(Sketcher.Constraint("Coincident", 6, 2, 7, 1))
sketch10.addConstraint(Sketcher.Constraint("Coincident", 7, 2, 4, 1))
sketch10.addConstraint(Sketcher.Constraint("Vertical", 0))
sketch10.addConstraint(Sketcher.Constraint("Horizontal", 1))
sketch10.addConstraint(Sketcher.Constraint("Vertical", 2))
sketch10.addConstraint(Sketcher.Constraint("Horizontal", 3))
sketch10.addConstraint(Sketcher.Constraint("Vertical", 4))
sketch10.addConstraint(Sketcher.Constraint("Horizontal", 5))
sketch10.addConstraint(Sketcher.Constraint("Vertical", 6))
sketch10.addConstraint(Sketcher.Constraint("Horizontal", 7))
sketch10.addConstraint(Sketcher.Constraint("Symmetric", 3, 2, 4, 2, -1))
sketch10.addConstraint(Sketcher.Constraint("Symmetric", 1, 2, 6, 2, -1))
sketch10.addConstraint(Sketcher.Constraint("DistanceY", 0, 2, 0, 1, 10.0))
sketch10.addConstraint(Sketcher.Constraint("DistanceX", 1, 1, 1, 2, 13.5))
sketch10.addConstraint(Sketcher.Constraint("DistanceY", -1, 1, 0, 2, 9.0))
sketch10.addConstraint(Sketcher.Constraint("DistanceX", -1, 1, 1, 2, 5.0))
sketch10.setExpression("Constraints[18]", "Params.sketch10_height")
sketch10.setExpression("Constraints[19]", "Params.sketch10_width")
pocket2 = doc.addObject("PartDesign::Pocket", "Pocket001")
body.addObject(pocket2)
pocket2.Profile = sketch10
pocket2.Type = "ThroughAll"

doc.recompute()
